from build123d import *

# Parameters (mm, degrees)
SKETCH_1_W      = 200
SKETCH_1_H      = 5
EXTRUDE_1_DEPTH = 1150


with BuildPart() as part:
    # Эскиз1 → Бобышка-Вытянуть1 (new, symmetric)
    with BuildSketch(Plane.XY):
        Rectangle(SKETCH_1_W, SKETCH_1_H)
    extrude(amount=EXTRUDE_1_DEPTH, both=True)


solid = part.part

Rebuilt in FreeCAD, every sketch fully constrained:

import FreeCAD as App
import Part
import Sketcher

V = App.Vector


def add_polygon(sketch, points):
    """Adds a closed chain of lines whose ends are joined by coincident constraints."""
    first, n = sketch.GeometryCount, len(points)
    for a, b in zip(points, points[1:] + points[:1]):
        sketch.addGeometry(Part.LineSegment(App.Vector(*a, 0), App.Vector(*b, 0)), False)
    for i in range(n):
        sketch.addConstraint(Sketcher.Constraint("Coincident", first + i, 2, first + (i + 1) % n, 1))

doc = App.newDocument("Part")
body = doc.addObject("PartDesign::Body", "Body")

sketch1 = body.newObject("Sketcher::SketchObject", "Sketch")
sketch1.AttachmentSupport = (doc.getObject("XY_Plane"), [""])
sketch1.MapMode = "FlatFace"
add_polygon(sketch1, [(-100, 2), (-100, -2), (100, -2), (100, 2)])
sketch1.addConstraint(Sketcher.Constraint("Vertical", 0))
sketch1.addConstraint(Sketcher.Constraint("Horizontal", 1))
sketch1.addConstraint(Sketcher.Constraint("Vertical", 2))
sketch1.addConstraint(Sketcher.Constraint("Horizontal", 3))
sketch1.addConstraint(Sketcher.Constraint("Symmetric", 0, 2, 2, 2, -1, 1))
sketch1.addConstraint(Sketcher.Constraint("DistanceX", 1, 1, 1, 2, 200.0))
sketch1.addConstraint(Sketcher.Constraint("DistanceY", 0, 2, 0, 1, 5.0))
pad1 = body.newObject("PartDesign::Pad", "Pad")
pad1.Profile = sketch1
pad1.Length = 2300
pad1.Midplane = True

doc.recompute()
